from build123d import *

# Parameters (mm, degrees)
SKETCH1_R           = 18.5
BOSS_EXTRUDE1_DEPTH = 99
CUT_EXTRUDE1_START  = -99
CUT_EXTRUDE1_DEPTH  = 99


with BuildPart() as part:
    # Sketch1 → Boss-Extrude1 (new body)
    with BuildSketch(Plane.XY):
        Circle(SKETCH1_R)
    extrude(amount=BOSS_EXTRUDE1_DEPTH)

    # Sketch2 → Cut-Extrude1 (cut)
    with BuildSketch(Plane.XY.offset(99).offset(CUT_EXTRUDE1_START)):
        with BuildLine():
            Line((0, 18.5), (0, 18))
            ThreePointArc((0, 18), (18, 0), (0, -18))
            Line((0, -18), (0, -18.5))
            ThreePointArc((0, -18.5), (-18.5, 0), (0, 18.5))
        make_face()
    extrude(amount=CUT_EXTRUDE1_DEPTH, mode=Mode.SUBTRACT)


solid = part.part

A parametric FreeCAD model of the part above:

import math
import FreeCAD as App
import Part
import Sketcher

V = App.Vector
Q = App.Units.Quantity

doc = App.newDocument("Part")
params = doc.addObject("Spreadsheet::Sheet", "Params")
for row, (alias, value) in enumerate([
    ("sketch1_diameter", "37 mm"),
    ("pad1_length", "99 mm"),
    ("sketch2_radius", "18 mm"),
    ("sketch2_radius2", "18.5 mm"),
    ("pocket1_length", "99 mm"),
], start=1):
    params.set(f"A{row}", alias)
    params.set(f"B{row}", "=" + value)
    params.setAlias(f"B{row}", alias)

body = doc.addObject("PartDesign::Body", "Body")

# Sketch on XY plane
sketch1 = doc.addObject("Sketcher::SketchObject", "Sketch")
body.addObject(sketch1)
sketch1.AttachmentSupport = (doc.XY_Plane, [""])
sketch1.MapMode = "FlatFace"
sketch1.addGeometry(Part.Circle(V(0, 0, 0), V(0, 0, 1), 18), False)
sketch1.addConstraint(Sketcher.Constraint("Coincident", 0, 3, -1, 1))
sketch1.addConstraint(Sketcher.Constraint("Diameter", 0, Q("37 mm")))
sketch1.setExpression("Constraints[1]", "Params.sketch1_diameter")
pad1 = doc.addObject("PartDesign::Pad", "Pad")
body.addObject(pad1)
pad1.Profile = sketch1
pad1.setExpression("Length", "Params.pad1_length")

# Sketch on XY plane
sketch2 = doc.addObject("Sketcher::SketchObject", "Sketch001")
body.addObject(sketch2)
sketch2.AttachmentSupport = (doc.XY_Plane, [""])
sketch2.MapMode = "FlatFace"
sketch2.addGeometry(Part.LineSegment(V(0, 18, 0), V(0, 18.5, 0)), False)
sketch2.addGeometry(Part.ArcOfCircle(Part.Circle(V(0, 0, 0), V(0, 0, 1), 18.5), math.radians(90), math.radians(270)), False)
sketch2.addGeometry(Part.LineSegment(V(0, -18.5, 0), V(0, -18, 0)), False)
sketch2.addGeometry(Part.ArcOfCircle(Part.Circle(V(0, 0, 0), V(0, 0, 1), 18), math.radians(-90), math.radians(90)), False)
sketch2.addConstraint(Sketcher.Constraint("Coincident", 0, 2, 1, 1))
sketch2.addConstraint(Sketcher.Constraint("Coincident", 1, 2, 2, 1))
sketch2.addConstraint(Sketcher.Constraint("Coincident", 2, 2, 3, 1))
sketch2.addConstraint(Sketcher.Constraint("Coincident", 3, 2, 0, 1))
sketch2.addConstraint(Sketcher.Constraint("Vertical", 0))
sketch2.addConstraint(Sketcher.Constraint("Vertical", 2))
sketch2.addConstraint(Sketcher.Constraint("Coincident", 1, 3, -1, 1))
sketch2.addConstraint(Sketcher.Constraint("Coincident", 3, 3, -1, 1))
sketch2.addConstraint(Sketcher.Constraint("PointOnObject", 0, 2, -2))
sketch2.addConstraint(Sketcher.Constraint("PointOnObject", 1, 2, -2))
sketch2.addConstraint(Sketcher.Constraint("Radius", 3, Q("18 mm")))
sketch2.addConstraint(Sketcher.Constraint("Radius", 1, Q("18.5 mm")))
sketch2.setExpression("Constraints[10]", "Params.sketch2_radius")
sketch2.setExpression("Constraints[11]", "Params.sketch2_radius2")
pocket1 = doc.addObject("PartDesign::Pocket", "Pocket")
body.addObject(pocket1)
pocket1.Profile = sketch2
pocket1.setExpression("Length", "Params.pocket1_length")
pocket1.Reversed = True

doc.recompute()
